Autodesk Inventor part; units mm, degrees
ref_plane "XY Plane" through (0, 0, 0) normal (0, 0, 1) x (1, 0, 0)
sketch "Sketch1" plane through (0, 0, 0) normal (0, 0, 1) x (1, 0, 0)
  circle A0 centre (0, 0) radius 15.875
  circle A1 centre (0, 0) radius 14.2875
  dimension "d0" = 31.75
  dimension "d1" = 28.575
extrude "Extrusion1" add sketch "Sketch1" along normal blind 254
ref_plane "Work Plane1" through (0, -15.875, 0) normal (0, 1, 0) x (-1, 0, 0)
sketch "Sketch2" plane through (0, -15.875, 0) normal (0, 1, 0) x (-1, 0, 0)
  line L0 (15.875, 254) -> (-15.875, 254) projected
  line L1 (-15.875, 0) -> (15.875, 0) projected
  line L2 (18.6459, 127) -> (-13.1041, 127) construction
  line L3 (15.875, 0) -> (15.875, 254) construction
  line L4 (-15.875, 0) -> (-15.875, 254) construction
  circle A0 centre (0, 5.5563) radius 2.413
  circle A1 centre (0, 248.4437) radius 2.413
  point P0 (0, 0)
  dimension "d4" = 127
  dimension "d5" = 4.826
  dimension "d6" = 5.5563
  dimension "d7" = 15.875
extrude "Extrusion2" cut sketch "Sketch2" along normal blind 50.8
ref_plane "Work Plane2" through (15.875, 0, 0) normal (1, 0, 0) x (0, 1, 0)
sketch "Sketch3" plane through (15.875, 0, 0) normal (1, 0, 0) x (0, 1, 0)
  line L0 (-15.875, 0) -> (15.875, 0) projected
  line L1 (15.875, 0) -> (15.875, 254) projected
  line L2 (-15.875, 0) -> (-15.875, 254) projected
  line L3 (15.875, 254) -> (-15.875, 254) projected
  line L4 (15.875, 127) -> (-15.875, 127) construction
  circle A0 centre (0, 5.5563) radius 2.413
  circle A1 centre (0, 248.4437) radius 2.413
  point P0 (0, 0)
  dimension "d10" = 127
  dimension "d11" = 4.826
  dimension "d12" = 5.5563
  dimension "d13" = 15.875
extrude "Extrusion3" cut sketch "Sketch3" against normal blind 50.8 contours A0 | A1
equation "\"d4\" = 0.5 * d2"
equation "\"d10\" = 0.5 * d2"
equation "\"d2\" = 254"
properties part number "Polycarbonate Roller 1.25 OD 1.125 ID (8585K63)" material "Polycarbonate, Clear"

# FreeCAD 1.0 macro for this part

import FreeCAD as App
import Part
import Sketcher
from FreeCAD import Vector
Q = App.Units.Quantity

doc = App.newDocument("Part")
params = doc.addObject("Spreadsheet::Sheet", "Params")
for row, (alias, value) in enumerate([
    ("sketch1_diameter", "1.25 in"),
    ("sketch1_diameter2", "1.125 in"),
    ("pad1_length", "10 in"),
    ("sketch2_diameter", "0.19 in"),
    ("pocket1_length", "2 in"),
    ("sketch3_diameter", "0.19 in"),
    ("pocket2_length", "2 in"),
], start=1):
    params.set(f"A{row}", alias)
    params.set(f"B{row}", "=" + value)
    params.setAlias(f"B{row}", alias)

body = doc.addObject("PartDesign::Body", "Body")

# Sketch on XY plane
sketch1 = body.newObject("Sketcher::SketchObject", "Sketch")
sketch1.AttachmentSupport = (doc.getObject("XY_Plane"), [""])
sketch1.MapMode = "FlatFace"
sketch1.addGeometry([
    Part.Circle(Vector(0, 0, 0), Vector(0, 0, 1), 16),
    Part.Circle(Vector(0, 0, 0), Vector(0, 0, 1), 14),
], False)
sketch1.addConstraint([
    Sketcher.Constraint("Coincident", 0, 3, -1, 1),
    Sketcher.Constraint("Coincident", 1, 3, -1, 1),
    Sketcher.Constraint("Diameter", 0, Q("1.25 in")),
    Sketcher.Constraint("Diameter", 1, Q("1.125 in")),
])
sketch1.setExpression("Constraints[2]", "Params.sketch1_diameter")
sketch1.setExpression("Constraints[3]", "Params.sketch1_diameter2")
pad1 = body.newObject("PartDesign::Pad", "Pad")
pad1.Profile = sketch1
pad1.setExpression("Length", "Params.pad1_length")

# Sketch on XZ plane
sketch2 = body.newObject("Sketcher::SketchObject", "Sketch001")
sketch2.AttachmentSupport = (doc.getObject("XZ_Plane"), [""])
sketch2.MapMode = "FlatFace"
sketch2.AttachmentOffset = App.Placement(Vector(0, 0, 0.625 * 25.4), App.Rotation())
sketch2.addGeometry([
    Part.Circle(Vector(0, 5.6, 0), Vector(0, 0, 1), 2.4),
    Part.Circle(Vector(0, 248.4, 0), Vector(0, 0, 1), 2.4),
], False)
sketch2.addConstraint([
    Sketcher.Constraint("Equal", 0, 1),
    Sketcher.Constraint("PointOnObject", 0, 3, -2),
    Sketcher.Constraint("PointOnObject", 1, 3, -2),
    Sketcher.Constraint("Diameter", 0, Q("0.19 in")),
    Sketcher.Constraint("DistanceY", -1, 1, 0, 3, Q("0.218752 in")),
    Sketcher.Constraint("DistanceY", -1, 1, 1, 3, Q("9.781248 in")),
])
sketch2.setExpression("Constraints[3]", "Params.sketch2_diameter")
pocket1 = body.newObject("PartDesign::Pocket", "Pocket")
pocket1.Profile = sketch2
pocket1.setExpression("Length", "Params.pocket1_length")

# Sketch on YZ plane
sketch3 = body.newObject("Sketcher::SketchObject", "Sketch002")
sketch3.AttachmentSupport = (doc.getObject("YZ_Plane"), [""])
sketch3.MapMode = "FlatFace"
sketch3.AttachmentOffset = App.Placement(Vector(0, 0, 0.625 * 25.4), App.Rotation())
sketch3.addGeometry([
    Part.Circle(Vector(0, 5.6, 0), Vector(0, 0, 1), 2.4),
    Part.Circle(Vector(0, 248.4, 0), Vector(0, 0, 1), 2.4),
], False)
sketch3.addConstraint([
    Sketcher.Constraint("Equal", 0, 1),
    Sketcher.Constraint("PointOnObject", 0, 3, -2),
    Sketcher.Constraint("PointOnObject", 1, 3, -2),
    Sketcher.Constraint("Diameter", 0, Q("0.19 in")),
    Sketcher.Constraint("DistanceY", -1, 1, 0, 3, Q("0.218752 in")),
    Sketcher.Constraint("DistanceY", -1, 1, 1, 3, Q("9.781248 in")),
])
sketch3.setExpression("Constraints[3]", "Params.sketch3_diameter")
pocket2 = body.newObject("PartDesign::Pocket", "Pocket001")
pocket2.Profile = sketch3
pocket2.setExpression("Length", "Params.pocket2_length")

doc.recompute()
